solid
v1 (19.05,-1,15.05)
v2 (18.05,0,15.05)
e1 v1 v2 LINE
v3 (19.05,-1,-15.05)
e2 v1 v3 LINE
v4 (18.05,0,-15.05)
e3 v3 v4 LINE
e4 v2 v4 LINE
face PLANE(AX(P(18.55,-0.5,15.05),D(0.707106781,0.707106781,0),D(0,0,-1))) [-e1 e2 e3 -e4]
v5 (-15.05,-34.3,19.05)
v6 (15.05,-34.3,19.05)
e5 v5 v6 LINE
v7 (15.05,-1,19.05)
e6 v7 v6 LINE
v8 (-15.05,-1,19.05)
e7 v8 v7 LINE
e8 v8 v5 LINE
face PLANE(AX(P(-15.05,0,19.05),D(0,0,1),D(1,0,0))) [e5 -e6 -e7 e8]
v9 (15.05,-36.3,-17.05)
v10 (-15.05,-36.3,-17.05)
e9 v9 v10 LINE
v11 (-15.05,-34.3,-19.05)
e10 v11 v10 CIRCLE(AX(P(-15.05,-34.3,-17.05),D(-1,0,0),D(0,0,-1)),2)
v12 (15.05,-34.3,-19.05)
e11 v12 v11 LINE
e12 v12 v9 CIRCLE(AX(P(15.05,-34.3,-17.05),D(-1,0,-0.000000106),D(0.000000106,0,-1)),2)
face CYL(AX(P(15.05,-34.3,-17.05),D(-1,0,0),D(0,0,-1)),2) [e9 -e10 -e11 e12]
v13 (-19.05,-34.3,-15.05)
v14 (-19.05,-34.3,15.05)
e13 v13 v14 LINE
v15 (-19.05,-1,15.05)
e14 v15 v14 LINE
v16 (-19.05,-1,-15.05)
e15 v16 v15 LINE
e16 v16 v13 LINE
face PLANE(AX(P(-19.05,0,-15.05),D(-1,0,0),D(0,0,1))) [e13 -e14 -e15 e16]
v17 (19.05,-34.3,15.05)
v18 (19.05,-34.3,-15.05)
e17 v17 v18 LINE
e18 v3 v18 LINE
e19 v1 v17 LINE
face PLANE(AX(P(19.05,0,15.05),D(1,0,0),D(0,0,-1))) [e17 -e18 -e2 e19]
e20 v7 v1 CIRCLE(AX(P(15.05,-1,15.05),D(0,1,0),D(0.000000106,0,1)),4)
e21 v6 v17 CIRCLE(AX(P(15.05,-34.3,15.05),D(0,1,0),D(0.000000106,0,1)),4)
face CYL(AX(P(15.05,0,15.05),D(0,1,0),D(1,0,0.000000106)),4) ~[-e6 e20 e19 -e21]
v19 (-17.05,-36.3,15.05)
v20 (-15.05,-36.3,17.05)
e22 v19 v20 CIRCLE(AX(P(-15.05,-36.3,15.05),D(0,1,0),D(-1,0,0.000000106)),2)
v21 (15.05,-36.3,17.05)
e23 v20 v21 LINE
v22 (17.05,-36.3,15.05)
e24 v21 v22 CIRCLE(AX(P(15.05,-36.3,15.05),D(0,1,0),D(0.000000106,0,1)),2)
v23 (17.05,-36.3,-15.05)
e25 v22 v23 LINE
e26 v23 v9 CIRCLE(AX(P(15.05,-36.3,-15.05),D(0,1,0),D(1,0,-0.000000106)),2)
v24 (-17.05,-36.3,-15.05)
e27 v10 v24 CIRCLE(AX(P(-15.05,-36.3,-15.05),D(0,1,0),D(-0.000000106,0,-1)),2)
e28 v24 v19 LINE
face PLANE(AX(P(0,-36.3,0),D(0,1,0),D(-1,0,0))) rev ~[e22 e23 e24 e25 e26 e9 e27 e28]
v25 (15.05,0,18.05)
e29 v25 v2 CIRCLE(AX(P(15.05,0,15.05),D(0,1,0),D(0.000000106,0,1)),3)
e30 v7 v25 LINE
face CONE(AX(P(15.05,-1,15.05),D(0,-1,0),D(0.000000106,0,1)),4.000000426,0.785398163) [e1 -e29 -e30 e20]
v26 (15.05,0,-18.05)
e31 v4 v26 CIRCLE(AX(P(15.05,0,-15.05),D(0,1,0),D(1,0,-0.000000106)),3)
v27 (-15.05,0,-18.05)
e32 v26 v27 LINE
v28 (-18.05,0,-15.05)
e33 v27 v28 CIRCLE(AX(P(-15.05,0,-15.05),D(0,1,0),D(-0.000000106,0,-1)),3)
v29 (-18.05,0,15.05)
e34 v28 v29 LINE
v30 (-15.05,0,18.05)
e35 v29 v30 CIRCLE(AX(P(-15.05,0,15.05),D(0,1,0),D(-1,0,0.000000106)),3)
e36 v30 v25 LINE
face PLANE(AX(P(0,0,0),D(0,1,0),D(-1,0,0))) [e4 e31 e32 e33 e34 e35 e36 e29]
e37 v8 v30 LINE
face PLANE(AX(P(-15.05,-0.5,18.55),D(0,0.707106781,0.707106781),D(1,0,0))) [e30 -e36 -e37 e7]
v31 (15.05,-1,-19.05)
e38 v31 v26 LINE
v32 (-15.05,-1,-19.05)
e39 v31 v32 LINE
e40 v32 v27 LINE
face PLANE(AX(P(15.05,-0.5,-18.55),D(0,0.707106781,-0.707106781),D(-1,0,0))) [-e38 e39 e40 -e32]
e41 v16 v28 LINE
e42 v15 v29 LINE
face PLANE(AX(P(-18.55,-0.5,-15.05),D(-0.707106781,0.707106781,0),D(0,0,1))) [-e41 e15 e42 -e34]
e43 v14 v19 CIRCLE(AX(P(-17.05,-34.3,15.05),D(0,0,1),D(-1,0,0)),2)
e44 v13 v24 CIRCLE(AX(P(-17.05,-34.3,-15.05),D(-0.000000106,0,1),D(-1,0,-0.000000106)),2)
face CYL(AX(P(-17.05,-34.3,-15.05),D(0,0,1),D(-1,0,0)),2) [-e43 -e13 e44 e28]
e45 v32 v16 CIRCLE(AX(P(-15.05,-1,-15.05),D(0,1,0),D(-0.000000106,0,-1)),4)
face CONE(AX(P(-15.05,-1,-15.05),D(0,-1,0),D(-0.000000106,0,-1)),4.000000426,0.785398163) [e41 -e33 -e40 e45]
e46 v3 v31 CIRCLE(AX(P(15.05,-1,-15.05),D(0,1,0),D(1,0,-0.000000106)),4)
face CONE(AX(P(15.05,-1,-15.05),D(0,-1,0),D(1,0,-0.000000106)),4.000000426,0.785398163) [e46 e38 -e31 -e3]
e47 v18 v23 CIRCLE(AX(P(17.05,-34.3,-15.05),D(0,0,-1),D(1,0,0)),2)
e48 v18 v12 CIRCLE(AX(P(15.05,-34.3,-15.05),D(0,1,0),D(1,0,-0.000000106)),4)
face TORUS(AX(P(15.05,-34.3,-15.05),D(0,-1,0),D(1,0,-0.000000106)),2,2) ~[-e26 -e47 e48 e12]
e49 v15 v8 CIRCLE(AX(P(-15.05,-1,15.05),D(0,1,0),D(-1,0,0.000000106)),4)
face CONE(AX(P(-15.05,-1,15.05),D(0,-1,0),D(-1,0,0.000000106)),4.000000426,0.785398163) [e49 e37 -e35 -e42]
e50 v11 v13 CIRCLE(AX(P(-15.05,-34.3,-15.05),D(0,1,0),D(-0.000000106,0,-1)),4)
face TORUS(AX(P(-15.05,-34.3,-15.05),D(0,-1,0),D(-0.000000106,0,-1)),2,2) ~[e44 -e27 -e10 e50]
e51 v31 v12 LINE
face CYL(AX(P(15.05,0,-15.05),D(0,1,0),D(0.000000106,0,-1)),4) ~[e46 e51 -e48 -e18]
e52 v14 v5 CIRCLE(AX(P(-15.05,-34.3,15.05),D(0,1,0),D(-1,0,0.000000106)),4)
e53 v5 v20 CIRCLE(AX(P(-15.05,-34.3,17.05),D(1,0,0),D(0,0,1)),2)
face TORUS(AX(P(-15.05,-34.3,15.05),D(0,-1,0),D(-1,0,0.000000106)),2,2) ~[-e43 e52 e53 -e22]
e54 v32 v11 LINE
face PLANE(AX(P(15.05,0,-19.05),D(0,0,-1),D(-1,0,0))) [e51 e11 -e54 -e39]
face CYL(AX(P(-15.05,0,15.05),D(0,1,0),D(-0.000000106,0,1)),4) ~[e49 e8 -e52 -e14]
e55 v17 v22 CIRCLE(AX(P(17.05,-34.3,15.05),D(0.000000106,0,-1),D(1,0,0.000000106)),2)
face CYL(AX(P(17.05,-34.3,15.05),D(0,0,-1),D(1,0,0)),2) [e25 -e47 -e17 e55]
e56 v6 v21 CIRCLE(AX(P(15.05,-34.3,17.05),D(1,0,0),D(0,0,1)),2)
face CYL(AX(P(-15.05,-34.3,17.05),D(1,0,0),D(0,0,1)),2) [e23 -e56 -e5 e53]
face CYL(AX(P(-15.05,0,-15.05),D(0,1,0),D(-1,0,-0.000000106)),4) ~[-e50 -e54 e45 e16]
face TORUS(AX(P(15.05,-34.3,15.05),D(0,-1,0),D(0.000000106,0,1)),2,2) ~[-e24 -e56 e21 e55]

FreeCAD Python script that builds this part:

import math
import FreeCAD as App
import Part
import Sketcher
Q = App.Units.Quantity


def edges_at(feature, points):
    """Names of the edges that pass closest to the given points."""
    edges = feature.Shape.Edges
    near = lambda p: min(range(len(edges)), key=lambda i: edges[i].distToShape(Part.Vertex(*p))[0])
    return sorted({f"Edge{near(p) + 1}" for p in points})

doc = App.newDocument("Part")
params = doc.addObject("Spreadsheet::Sheet", "Params")
for row, (alias, value) in enumerate([
    ("sketch1_radius", "4 mm"),
    ("sketch1_width", "30.1 mm"),
    ("pad1_length", "36.3 mm"),
    ("chamfer_size", "1 mm"),
    ("fillet_radius", "2 mm"),
], start=1):
    params.set(f"A{row}", alias)
    params.set(f"B{row}", "=" + value)
    params.setAlias(f"B{row}", alias)

body = doc.addObject("PartDesign::Body", "Body")

sketch1 = body.newObject("Sketcher::SketchObject", "Sketch")
sketch1.AttachmentSupport = (doc.getObject("XZ_Plane"), [""])
sketch1.MapMode = "FlatFace"
sketch1.addGeometry(Part.LineSegment(App.Vector(15.1, 19.1, 0), App.Vector(-15.1, 19.1, 0)), False)
sketch1.addGeometry(Part.ArcOfCircle(Part.Circle(App.Vector(-15, 15, 0), App.Vector(0, 0, 1), 4), math.radians(90), math.radians(180)), False)
sketch1.addGeometry(Part.LineSegment(App.Vector(-19.1, 15.1, 0), App.Vector(-19.1, -15.1, 0)), False)
sketch1.addGeometry(Part.ArcOfCircle(Part.Circle(App.Vector(-15, -15, 0), App.Vector(0, 0, 1), 4), math.radians(-180), math.radians(-90)), False)
sketch1.addGeometry(Part.LineSegment(App.Vector(-15.1, -19.1, 0), App.Vector(15.1, -19.1, 0)), False)
sketch1.addGeometry(Part.ArcOfCircle(Part.Circle(App.Vector(15, -15, 0), App.Vector(0, 0, 1), 4), math.radians(-90), math.radians(0)), False)
sketch1.addGeometry(Part.LineSegment(App.Vector(19.1, -15.1, 0), App.Vector(19.1, 15.1, 0)), False)
sketch1.addGeometry(Part.ArcOfCircle(Part.Circle(App.Vector(15, 15, 0), App.Vector(0, 0, 1), 4), math.radians(0), math.radians(90)), False)
sketch1.addConstraint(Sketcher.Constraint("Tangent", 0, 2, 1, 1))
sketch1.addConstraint(Sketcher.Constraint("Tangent", 1, 2, 2, 1))
sketch1.addConstraint(Sketcher.Constraint("Tangent", 2, 2, 3, 1))
sketch1.addConstraint(Sketcher.Constraint("Tangent", 3, 2, 4, 1))
sketch1.addConstraint(Sketcher.Constraint("Tangent", 4, 2, 5, 1))
sketch1.addConstraint(Sketcher.Constraint("Tangent", 5, 2, 6, 1))
sketch1.addConstraint(Sketcher.Constraint("Tangent", 6, 2, 7, 1))
sketch1.addConstraint(Sketcher.Constraint("Tangent", 7, 2, 0, 1))
sketch1.addConstraint(Sketcher.Constraint("Horizontal", 0))
sketch1.addConstraint(Sketcher.Constraint("Vertical", 2))
sketch1.addConstraint(Sketcher.Constraint("Horizontal", 4))
sketch1.addConstraint(Sketcher.Constraint("Vertical", 6))
sketch1.addConstraint(Sketcher.Constraint("Equal", 1, 3))
sketch1.addConstraint(Sketcher.Constraint("Equal", 3, 5))
sketch1.addConstraint(Sketcher.Constraint("Equal", 5, 7))
sketch1.addConstraint(Sketcher.Constraint("Symmetric", 1, 3, 5, 3, -1, 1))
sketch1.addConstraint(Sketcher.Constraint("Equal", 4, 2))
sketch1.addConstraint(Sketcher.Constraint("Radius", 1, Q("4 mm")))
sketch1.addConstraint(Sketcher.Constraint("DistanceX", 0, 2, 0, 1, Q("30.1 mm")))
sketch1.setExpression("Constraints[17]", "Params.sketch1_radius")
sketch1.setExpression("Constraints[18]", "Params.sketch1_width")
pad1 = body.newObject("PartDesign::Pad", "Pad")
pad1.Profile = sketch1
pad1.setExpression("Length", "Params.pad1_length")
doc.recompute()

chamfer = body.newObject("PartDesign::Chamfer", "Chamfer")
chamfer.Base = (pad1, edges_at(pad1, [
    (0, 0, 19.05),
    (17.878, 0, 17.878),
    (19.05, 0, 0),
    (17.878, 0, -17.878),
    (0, 0, -19.05),
    (-17.878, 0, -17.878),
    (-19.05, 0, 0),
    (-17.878, 0, 17.878),
]))
chamfer.setExpression("Size", "Params.chamfer_size")
doc.recompute()

fillet = body.newObject("PartDesign::Fillet", "Fillet")
fillet.Base = (chamfer, edges_at(chamfer, [
    (0, -36.3, 19.05),
    (17.878, -36.3, 17.878),
    (19.05, -36.3, 0),
    (17.878, -36.3, -17.878),
    (0, -36.3, -19.05),
    (-17.878, -36.3, -17.878),
    (-19.05, -36.3, 0),
    (-17.878, -36.3, 17.878),
]))
fillet.setExpression("Radius", "Params.fillet_radius")

doc.recompute()
